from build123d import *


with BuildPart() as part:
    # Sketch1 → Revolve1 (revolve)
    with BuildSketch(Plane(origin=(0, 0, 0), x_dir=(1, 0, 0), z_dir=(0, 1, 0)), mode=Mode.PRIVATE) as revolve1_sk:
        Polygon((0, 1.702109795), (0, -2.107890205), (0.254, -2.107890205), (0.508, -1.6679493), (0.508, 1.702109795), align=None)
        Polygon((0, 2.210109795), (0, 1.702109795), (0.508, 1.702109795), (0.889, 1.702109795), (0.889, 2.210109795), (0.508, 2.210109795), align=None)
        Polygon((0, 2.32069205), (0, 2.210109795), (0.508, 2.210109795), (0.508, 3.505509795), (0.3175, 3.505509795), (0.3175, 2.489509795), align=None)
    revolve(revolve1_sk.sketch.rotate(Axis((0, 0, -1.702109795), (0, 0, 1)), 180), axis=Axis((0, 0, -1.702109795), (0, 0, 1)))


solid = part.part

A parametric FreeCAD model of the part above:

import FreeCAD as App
import Part
import Sketcher
Q = App.Units.Quantity

doc = App.newDocument("Part")
body = doc.addObject("PartDesign::Body", "Body")

sketch1 = body.newObject("Sketcher::SketchObject", "Sketch")
sketch1.AttachmentSupport = (doc.getObject("XZ_Plane"), [""])
sketch1.MapMode = "FlatFace"
sketch1.addGeometry([
    Part.LineSegment(App.Vector(0, 2.10789, 0), App.Vector(0.254, 2.10789, 0)),
    Part.LineSegment(App.Vector(0.254, 2.10789, 0), App.Vector(0.508, 1.667949, 0)),
    Part.LineSegment(App.Vector(0.508, 1.667949, 0), App.Vector(0.508, -1.70211, 0)),
    Part.LineSegment(App.Vector(0.508, -1.70211, 0), App.Vector(0.889, -1.70211, 0)),
    Part.LineSegment(App.Vector(0.889, -1.70211, 0), App.Vector(0.889, -2.21011, 0)),
    Part.LineSegment(App.Vector(0.889, -2.21011, 0), App.Vector(0.508, -2.21011, 0)),
    Part.LineSegment(App.Vector(0.508, -2.21011, 0), App.Vector(0.508, -3.50551, 0)),
    Part.LineSegment(App.Vector(0.508, -3.50551, 0), App.Vector(0.3175, -3.50551, 0)),
    Part.LineSegment(App.Vector(0.3175, -3.50551, 0), App.Vector(0.3175, -2.48951, 0)),
    Part.LineSegment(App.Vector(0.3175, -2.48951, 0), App.Vector(0, -2.320692, 0)),
    Part.LineSegment(App.Vector(0, -2.320692, 0), App.Vector(0, 2.10789, 0)),
], False)
sketch1.addConstraint([
    Sketcher.Constraint("Coincident", 0, 2, 1, 1),
    Sketcher.Constraint("Coincident", 1, 2, 2, 1),
    Sketcher.Constraint("Coincident", 2, 2, 3, 1),
    Sketcher.Constraint("Coincident", 3, 2, 4, 1),
    Sketcher.Constraint("Coincident", 4, 2, 5, 1),
    Sketcher.Constraint("Coincident", 5, 2, 6, 1),
    Sketcher.Constraint("Coincident", 6, 2, 7, 1),
    Sketcher.Constraint("Coincident", 7, 2, 8, 1),
    Sketcher.Constraint("Coincident", 8, 2, 9, 1),
    Sketcher.Constraint("Coincident", 9, 2, 10, 1),
    Sketcher.Constraint("Coincident", 10, 2, 0, 1),
    Sketcher.Constraint("Horizontal", 0),
    Sketcher.Constraint("Vertical", 2),
    Sketcher.Constraint("Horizontal", 3),
    Sketcher.Constraint("Vertical", 4),
    Sketcher.Constraint("Horizontal", 5),
    Sketcher.Constraint("Vertical", 6),
    Sketcher.Constraint("Horizontal", 7),
    Sketcher.Constraint("Vertical", 8),
    Sketcher.Constraint("Vertical", 10),
    Sketcher.Constraint("PointOnObject", 9, 2, -2),
    Sketcher.Constraint("Vertical", 2, 2, 5, 2),
    Sketcher.Constraint("Angle", 1, Q("-60 deg")),
    Sketcher.Constraint("Angle", 9, Q("152 deg")),
    Sketcher.Constraint("DistanceX", 0, 1, 0, 2, Q("0.01 in")),
    Sketcher.Constraint("DistanceY", 4, 2, 4, 1, Q("0.02 in")),
    Sketcher.Constraint("DistanceY", 8, 1, 8, 2, Q("0.04 in")),
    Sketcher.Constraint("Distance", 1, Q("0.02 in")),
    Sketcher.Constraint("DistanceX", 3, 1, 3, 2, Q("0.015 in")),
    Sketcher.Constraint("DistanceY", 6, 2, 6, 1, Q("0.051 in")),
    Sketcher.Constraint("DistanceY", 2, 2, 0, 2, Q("0.15 in")),
    Sketcher.Constraint("DistanceX", 7, 2, 7, 1, Q("0.0075 in")),
    Sketcher.Constraint("DistanceY", -1, 1, 0, 2, 2.10789),
])
revolution = body.newObject("PartDesign::Revolution", "Revolution")
revolution.Profile = sketch1
revolution.ReferenceAxis = (sketch1, ["V_Axis"])
revolution.Angle = 360

doc.recompute()
